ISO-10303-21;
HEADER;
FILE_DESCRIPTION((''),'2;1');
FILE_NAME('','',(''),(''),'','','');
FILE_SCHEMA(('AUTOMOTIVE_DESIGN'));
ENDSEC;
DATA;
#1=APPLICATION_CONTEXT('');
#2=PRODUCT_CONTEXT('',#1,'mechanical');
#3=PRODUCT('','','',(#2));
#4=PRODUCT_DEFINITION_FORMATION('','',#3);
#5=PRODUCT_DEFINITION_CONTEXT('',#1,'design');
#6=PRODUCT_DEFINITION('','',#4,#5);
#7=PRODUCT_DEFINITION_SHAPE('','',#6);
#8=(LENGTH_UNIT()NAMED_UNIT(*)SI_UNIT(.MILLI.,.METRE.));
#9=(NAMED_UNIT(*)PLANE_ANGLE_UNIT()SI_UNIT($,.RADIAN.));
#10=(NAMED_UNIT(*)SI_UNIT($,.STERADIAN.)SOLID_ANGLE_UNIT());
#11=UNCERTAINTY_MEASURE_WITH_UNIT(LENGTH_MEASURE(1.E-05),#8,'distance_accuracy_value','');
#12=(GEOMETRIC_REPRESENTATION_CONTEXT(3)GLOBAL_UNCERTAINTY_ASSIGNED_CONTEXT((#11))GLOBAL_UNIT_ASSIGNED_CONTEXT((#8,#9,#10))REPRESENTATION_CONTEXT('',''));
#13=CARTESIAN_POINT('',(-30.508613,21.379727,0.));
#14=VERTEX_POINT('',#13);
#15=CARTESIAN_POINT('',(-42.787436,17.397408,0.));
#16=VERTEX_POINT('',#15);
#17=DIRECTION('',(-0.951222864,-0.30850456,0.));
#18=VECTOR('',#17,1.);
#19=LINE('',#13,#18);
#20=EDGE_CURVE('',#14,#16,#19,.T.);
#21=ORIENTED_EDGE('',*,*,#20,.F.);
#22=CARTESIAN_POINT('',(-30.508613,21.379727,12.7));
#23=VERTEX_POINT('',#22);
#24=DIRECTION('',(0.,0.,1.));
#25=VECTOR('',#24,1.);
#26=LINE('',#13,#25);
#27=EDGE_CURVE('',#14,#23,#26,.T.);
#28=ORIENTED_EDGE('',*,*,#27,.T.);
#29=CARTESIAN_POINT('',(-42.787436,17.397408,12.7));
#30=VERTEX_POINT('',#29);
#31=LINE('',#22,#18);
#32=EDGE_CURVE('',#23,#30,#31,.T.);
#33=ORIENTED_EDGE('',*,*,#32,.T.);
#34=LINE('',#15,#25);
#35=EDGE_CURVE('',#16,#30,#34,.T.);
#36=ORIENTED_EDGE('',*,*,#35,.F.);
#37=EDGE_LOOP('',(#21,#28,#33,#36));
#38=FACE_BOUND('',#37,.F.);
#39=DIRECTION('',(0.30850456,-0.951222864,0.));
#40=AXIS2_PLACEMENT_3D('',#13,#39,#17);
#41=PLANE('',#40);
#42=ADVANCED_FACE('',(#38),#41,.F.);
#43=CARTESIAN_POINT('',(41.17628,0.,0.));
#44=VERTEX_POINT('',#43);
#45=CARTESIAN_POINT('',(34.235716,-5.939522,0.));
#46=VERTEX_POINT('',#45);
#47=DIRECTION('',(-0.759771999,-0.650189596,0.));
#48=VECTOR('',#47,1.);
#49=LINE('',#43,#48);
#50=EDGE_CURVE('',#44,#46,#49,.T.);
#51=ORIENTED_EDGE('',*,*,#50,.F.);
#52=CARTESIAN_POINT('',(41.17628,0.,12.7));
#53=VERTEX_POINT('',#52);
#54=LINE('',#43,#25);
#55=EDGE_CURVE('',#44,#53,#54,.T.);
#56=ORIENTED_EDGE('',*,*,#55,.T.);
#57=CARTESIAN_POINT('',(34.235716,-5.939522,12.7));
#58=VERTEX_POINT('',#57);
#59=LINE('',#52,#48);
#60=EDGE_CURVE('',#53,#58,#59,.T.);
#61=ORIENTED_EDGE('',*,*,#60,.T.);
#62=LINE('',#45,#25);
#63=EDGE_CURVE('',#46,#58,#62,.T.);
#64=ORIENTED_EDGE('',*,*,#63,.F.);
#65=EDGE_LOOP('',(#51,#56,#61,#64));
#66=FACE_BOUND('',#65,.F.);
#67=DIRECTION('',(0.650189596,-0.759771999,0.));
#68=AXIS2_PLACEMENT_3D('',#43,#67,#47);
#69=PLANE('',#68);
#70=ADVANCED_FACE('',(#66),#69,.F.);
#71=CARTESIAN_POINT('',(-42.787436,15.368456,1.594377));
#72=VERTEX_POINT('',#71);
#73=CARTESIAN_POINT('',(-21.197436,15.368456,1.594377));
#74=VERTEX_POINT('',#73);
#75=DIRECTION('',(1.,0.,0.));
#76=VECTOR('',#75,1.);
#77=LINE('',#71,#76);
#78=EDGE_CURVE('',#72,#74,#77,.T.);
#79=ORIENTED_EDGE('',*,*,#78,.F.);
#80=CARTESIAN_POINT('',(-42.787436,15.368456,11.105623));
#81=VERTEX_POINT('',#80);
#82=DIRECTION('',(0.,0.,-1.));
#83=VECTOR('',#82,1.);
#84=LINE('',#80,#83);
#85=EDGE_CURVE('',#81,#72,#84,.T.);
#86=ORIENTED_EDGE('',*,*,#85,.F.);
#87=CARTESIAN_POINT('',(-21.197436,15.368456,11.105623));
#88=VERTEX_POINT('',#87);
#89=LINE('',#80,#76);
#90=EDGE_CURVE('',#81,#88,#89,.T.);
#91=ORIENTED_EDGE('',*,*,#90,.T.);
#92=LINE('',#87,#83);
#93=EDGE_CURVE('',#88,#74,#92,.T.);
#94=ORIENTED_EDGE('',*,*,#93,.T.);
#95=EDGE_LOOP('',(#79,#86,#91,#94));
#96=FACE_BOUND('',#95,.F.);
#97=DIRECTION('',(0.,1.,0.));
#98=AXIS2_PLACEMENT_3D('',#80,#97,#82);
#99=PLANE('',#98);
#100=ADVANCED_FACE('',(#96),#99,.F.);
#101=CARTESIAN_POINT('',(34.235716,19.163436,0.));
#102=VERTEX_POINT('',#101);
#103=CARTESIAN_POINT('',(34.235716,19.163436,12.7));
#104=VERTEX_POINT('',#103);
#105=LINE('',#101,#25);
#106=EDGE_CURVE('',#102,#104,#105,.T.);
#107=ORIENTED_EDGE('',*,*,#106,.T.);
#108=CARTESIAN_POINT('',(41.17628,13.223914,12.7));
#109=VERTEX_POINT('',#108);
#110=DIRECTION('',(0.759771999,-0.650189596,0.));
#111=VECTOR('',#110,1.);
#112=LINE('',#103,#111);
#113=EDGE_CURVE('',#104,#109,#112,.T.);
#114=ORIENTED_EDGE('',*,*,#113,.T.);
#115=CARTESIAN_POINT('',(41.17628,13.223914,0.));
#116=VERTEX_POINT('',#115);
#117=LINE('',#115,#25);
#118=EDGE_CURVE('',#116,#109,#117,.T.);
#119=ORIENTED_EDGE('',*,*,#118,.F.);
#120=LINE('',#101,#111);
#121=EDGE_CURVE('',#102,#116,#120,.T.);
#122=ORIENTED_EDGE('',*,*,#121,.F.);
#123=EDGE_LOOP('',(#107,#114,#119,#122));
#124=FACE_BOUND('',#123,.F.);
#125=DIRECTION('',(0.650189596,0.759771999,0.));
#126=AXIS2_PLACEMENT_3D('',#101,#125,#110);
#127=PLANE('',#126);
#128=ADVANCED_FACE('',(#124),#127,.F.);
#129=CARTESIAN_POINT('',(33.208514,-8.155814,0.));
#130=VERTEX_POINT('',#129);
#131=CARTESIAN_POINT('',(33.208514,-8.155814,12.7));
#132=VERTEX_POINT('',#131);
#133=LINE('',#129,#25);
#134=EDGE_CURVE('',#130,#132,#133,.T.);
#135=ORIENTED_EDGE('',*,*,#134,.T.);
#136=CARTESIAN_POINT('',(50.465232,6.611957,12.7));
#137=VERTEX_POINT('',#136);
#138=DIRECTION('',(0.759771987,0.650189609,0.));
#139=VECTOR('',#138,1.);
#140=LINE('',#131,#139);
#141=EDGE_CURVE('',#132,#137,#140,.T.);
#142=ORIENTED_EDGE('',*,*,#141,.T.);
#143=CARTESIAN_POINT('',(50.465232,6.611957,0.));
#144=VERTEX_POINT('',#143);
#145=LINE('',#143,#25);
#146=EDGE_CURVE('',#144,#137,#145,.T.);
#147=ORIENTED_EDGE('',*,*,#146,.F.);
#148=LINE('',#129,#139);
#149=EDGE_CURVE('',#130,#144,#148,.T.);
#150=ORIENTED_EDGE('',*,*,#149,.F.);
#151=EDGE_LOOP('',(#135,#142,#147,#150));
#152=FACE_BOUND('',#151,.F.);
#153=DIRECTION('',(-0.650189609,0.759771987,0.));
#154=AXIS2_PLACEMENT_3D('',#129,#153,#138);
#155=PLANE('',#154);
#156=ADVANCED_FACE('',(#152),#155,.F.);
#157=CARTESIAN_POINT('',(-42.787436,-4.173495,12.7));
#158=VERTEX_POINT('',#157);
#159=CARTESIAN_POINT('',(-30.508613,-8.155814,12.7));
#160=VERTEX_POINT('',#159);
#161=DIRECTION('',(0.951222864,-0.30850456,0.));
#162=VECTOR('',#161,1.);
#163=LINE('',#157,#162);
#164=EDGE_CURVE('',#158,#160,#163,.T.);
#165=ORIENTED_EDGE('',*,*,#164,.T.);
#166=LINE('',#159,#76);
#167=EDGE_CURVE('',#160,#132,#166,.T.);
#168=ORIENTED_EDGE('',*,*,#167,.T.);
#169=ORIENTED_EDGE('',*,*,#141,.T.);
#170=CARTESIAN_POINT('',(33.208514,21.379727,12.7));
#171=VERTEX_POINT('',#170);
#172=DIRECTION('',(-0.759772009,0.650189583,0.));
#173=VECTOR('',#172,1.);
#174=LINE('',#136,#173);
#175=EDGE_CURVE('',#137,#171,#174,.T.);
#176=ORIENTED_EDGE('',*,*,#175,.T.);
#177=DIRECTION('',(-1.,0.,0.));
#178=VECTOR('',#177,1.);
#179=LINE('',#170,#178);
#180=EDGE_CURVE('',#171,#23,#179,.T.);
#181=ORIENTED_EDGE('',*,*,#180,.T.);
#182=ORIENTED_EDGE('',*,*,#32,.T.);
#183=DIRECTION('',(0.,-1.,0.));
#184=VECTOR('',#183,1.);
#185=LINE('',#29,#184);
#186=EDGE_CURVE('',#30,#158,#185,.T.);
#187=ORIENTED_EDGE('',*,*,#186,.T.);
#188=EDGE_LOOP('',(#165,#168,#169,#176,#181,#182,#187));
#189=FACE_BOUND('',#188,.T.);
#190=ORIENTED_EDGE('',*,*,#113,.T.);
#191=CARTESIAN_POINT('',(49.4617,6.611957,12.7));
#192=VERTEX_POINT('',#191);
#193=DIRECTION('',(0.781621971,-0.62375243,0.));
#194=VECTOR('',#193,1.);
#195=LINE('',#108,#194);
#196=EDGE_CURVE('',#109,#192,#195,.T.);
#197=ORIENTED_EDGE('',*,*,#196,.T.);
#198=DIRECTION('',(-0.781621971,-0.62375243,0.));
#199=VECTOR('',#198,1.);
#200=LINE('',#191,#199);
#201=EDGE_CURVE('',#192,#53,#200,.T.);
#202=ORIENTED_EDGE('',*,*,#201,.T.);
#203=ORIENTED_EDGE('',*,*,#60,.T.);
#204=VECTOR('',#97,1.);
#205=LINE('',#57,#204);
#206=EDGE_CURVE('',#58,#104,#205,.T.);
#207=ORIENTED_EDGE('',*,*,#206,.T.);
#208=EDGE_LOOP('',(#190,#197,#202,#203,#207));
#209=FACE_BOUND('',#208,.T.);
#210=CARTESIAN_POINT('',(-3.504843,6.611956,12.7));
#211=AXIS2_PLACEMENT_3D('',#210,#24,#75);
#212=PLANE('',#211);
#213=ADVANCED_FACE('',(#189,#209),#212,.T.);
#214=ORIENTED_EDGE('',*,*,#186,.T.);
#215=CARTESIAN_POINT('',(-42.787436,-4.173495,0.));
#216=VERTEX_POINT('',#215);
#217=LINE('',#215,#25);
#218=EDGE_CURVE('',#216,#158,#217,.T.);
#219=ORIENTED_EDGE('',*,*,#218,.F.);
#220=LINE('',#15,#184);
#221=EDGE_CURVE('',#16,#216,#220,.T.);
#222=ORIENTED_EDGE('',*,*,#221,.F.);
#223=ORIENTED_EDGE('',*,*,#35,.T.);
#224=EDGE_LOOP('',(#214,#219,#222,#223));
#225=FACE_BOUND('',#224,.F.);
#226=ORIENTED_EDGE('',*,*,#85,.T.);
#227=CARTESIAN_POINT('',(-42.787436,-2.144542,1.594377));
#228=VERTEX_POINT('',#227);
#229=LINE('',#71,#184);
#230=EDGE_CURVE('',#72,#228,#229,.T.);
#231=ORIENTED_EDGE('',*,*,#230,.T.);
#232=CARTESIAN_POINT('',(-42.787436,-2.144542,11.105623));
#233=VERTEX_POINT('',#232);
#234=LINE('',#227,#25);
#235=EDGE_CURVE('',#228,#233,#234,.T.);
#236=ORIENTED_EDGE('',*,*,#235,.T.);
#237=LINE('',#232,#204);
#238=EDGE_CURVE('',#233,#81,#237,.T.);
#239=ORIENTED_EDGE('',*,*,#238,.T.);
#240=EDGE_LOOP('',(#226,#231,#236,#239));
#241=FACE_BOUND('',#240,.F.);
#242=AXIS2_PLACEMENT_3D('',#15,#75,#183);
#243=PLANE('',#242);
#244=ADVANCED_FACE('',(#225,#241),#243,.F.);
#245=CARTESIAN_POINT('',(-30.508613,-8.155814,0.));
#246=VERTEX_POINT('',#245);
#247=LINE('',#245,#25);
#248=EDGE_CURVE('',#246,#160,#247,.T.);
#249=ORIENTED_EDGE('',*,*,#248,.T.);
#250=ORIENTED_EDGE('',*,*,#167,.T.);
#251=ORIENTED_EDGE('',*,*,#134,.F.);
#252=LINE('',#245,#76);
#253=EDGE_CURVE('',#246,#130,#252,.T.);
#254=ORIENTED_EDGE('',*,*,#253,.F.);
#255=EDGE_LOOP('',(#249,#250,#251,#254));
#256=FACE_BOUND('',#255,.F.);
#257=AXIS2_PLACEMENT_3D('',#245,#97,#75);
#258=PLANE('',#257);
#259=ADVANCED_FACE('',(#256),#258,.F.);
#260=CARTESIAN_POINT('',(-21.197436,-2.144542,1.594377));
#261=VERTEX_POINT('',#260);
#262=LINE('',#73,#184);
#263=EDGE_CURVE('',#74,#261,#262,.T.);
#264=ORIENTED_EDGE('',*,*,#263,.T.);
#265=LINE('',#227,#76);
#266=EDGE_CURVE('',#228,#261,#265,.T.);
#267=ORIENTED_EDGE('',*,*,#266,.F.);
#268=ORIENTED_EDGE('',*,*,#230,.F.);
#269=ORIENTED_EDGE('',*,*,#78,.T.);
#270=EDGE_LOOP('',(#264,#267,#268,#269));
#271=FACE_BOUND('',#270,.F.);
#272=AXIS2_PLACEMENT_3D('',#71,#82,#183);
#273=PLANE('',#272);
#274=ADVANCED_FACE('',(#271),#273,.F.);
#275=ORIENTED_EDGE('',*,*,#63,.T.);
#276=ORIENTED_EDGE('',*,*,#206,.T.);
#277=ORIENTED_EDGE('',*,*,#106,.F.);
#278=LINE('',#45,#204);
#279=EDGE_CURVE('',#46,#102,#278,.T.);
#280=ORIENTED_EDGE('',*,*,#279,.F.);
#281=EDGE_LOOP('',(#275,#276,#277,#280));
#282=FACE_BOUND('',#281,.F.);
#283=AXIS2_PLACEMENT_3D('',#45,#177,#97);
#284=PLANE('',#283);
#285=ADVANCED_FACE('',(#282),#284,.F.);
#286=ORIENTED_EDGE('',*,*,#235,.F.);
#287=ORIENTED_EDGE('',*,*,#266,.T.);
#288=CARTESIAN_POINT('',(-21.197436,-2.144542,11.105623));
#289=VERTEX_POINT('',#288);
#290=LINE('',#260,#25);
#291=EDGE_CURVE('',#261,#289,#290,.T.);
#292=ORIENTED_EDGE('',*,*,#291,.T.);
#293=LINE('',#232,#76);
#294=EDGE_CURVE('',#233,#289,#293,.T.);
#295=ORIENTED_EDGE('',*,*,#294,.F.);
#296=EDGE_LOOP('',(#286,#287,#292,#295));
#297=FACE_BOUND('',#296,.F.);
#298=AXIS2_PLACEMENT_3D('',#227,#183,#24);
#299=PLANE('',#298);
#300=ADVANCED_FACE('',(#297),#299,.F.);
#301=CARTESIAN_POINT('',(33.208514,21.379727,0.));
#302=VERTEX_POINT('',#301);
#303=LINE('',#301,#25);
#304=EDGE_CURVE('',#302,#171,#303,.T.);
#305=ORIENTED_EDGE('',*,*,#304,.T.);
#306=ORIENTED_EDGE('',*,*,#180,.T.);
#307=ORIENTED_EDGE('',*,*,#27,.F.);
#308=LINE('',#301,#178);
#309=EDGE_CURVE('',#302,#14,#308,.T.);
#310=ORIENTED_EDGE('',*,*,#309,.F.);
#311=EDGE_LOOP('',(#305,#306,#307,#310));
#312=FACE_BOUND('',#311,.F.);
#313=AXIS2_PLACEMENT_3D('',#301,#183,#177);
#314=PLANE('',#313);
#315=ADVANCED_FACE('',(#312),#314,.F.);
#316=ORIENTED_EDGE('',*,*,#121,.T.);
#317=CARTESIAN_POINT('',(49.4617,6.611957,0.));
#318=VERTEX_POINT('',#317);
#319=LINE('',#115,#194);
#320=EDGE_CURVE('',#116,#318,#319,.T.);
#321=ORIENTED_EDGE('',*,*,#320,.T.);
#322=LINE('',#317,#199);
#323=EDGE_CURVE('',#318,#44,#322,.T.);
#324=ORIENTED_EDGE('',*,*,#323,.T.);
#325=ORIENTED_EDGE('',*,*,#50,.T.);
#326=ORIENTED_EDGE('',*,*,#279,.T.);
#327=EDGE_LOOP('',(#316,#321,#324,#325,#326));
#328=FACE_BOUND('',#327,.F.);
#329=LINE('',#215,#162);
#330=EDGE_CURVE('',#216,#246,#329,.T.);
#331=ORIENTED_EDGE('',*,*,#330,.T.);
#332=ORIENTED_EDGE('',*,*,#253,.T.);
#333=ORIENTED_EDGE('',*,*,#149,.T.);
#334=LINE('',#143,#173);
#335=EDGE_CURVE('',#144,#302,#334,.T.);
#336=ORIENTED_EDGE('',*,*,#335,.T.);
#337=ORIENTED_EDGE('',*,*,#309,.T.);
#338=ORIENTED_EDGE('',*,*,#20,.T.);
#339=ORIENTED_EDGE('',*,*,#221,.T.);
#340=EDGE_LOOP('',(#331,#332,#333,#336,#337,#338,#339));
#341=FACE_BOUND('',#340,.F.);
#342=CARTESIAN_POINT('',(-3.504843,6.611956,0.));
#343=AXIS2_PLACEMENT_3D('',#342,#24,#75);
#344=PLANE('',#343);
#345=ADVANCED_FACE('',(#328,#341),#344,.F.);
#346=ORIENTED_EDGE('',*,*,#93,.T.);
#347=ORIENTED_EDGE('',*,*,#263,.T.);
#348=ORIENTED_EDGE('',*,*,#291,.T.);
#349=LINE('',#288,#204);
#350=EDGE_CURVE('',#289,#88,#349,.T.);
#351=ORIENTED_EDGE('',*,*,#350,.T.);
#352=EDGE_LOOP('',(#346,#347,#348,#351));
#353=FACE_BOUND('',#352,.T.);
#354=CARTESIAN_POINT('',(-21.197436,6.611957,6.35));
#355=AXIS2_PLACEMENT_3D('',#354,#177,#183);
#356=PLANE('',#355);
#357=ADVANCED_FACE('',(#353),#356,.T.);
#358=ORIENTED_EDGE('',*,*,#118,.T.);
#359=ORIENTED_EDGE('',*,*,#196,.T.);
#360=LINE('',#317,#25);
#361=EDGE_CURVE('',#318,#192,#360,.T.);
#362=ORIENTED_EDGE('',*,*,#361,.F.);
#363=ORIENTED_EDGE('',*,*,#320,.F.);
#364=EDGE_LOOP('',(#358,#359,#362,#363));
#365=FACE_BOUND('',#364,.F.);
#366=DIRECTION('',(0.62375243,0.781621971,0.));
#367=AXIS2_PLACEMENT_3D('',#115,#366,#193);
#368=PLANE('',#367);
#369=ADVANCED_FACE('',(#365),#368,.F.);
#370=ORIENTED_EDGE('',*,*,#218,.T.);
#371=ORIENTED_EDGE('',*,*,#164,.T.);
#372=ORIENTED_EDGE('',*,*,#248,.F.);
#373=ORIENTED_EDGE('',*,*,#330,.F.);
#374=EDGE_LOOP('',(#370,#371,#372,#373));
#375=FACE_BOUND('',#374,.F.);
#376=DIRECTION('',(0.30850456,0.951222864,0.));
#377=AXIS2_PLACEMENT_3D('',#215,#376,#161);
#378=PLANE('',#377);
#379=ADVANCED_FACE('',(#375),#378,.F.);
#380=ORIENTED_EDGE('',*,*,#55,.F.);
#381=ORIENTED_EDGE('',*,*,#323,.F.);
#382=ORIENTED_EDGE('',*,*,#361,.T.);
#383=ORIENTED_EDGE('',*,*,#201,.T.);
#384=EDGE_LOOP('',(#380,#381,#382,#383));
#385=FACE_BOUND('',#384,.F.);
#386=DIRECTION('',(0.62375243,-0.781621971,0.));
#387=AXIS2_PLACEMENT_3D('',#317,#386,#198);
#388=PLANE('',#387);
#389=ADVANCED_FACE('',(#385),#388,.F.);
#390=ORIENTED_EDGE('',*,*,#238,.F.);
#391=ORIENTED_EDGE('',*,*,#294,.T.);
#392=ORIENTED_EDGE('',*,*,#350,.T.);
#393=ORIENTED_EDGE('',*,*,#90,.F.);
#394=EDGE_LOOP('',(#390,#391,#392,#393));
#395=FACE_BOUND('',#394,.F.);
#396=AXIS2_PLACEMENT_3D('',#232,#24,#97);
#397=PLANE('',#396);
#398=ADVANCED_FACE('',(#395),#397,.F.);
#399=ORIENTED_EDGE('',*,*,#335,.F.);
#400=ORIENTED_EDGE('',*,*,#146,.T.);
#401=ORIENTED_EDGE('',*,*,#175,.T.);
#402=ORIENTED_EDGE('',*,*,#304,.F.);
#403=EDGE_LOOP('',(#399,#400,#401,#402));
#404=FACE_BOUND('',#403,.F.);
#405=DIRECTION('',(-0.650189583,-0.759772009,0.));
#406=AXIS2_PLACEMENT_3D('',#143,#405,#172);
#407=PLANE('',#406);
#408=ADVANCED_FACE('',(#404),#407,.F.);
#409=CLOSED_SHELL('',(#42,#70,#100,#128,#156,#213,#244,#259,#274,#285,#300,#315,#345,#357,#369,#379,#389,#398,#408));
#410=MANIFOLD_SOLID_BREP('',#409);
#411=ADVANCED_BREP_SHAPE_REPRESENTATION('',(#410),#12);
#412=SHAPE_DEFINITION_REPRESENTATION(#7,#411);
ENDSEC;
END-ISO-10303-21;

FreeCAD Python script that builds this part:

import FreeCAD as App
import Part
import Sketcher
Q = App.Units.Quantity

doc = App.newDocument("Part")
body = doc.addObject("PartDesign::Body", "Body")

sketch1 = body.newObject("Sketcher::SketchObject", "Sketch")
sketch1.AttachmentSupport = (doc.getObject("XY_Plane"), [""])
sketch1.MapMode = "FlatFace"
sketch1.addGeometry([
    Part.LineSegment(App.Vector(33.208514, 21.379727, 0), App.Vector(-30.508613, 21.379727, 0)),
    Part.LineSegment(App.Vector(-30.508613, 21.379727, 0), App.Vector(-42.787436, 17.397408, 0)),
    Part.LineSegment(App.Vector(-42.787436, 17.397408, 0), App.Vector(-42.787436, -4.173495, 0)),
    Part.LineSegment(App.Vector(-42.787436, -4.173495, 0), App.Vector(-30.508613, -8.155814, 0)),
    Part.LineSegment(App.Vector(-30.508613, -8.155814, 0), App.Vector(33.208514, -8.155814, 0)),
    Part.LineSegment(App.Vector(33.208514, -8.155814, 0), App.Vector(50.465232, 6.611957, 0)),
    Part.LineSegment(App.Vector(50.465232, 6.611957, 0), App.Vector(33.208514, 21.379727, 0)),
    Part.LineSegment(App.Vector(41.17628, 13.223914, 0), App.Vector(49.4617, 6.611957, 0)),
    Part.LineSegment(App.Vector(49.4617, 6.611957, 0), App.Vector(41.17628, 0, 0)),
    Part.LineSegment(App.Vector(41.17628, 0, 0), App.Vector(34.235716, -5.939522, 0)),
    Part.LineSegment(App.Vector(34.235716, -5.939522, 0), App.Vector(34.235716, 19.163436, 0)),
    Part.LineSegment(App.Vector(34.235716, 19.163436, 0), App.Vector(41.17628, 13.223914, 0)),
], False)
sketch1.addConstraint([
    Sketcher.Constraint("Coincident", 0, 2, 1, 1),
    Sketcher.Constraint("Coincident", 1, 2, 2, 1),
    Sketcher.Constraint("Coincident", 2, 2, 3, 1),
    Sketcher.Constraint("Coincident", 3, 2, 4, 1),
    Sketcher.Constraint("Coincident", 4, 2, 5, 1),
    Sketcher.Constraint("Coincident", 5, 2, 6, 1),
    Sketcher.Constraint("Coincident", 6, 2, 0, 1),
    Sketcher.Constraint("Coincident", 7, 2, 8, 1),
    Sketcher.Constraint("Coincident", 8, 2, 9, 1),
    Sketcher.Constraint("Coincident", 9, 2, 10, 1),
    Sketcher.Constraint("Coincident", 10, 2, 11, 1),
    Sketcher.Constraint("Coincident", 11, 2, 7, 1),
    Sketcher.Constraint("Horizontal", 0),
    Sketcher.Constraint("Vertical", 2),
    Sketcher.Constraint("Horizontal", 4),
    Sketcher.Constraint("Vertical", 10),
    Sketcher.Constraint("PointOnObject", 8, 2, -1),
    Sketcher.Constraint("Parallel", 5, 9),
    Sketcher.Constraint("Parallel", 6, 11),
    Sketcher.Constraint("Horizontal", 5, 2, 7, 2),
    Sketcher.Constraint("Vertical", 0, 2, 3, 2),
    Sketcher.Constraint("Vertical", 4, 2, 6, 2),
    Sketcher.Constraint("Vertical", 8, 2, 11, 2),
    Sketcher.Constraint("Equal", 1, 3),
    Sketcher.Constraint("Equal", 5, 6),
    Sketcher.Constraint("Equal", 7, 8),
    Sketcher.Constraint("DistanceY", 10, 1, 10, 2, 25.102958),
    Sketcher.Constraint("DistanceX", -1, 1, 7, 2, 49.4617),
    Sketcher.Constraint("DistanceX", 4, 2, 9, 2, 1.027202),
    Sketcher.Constraint("Distance", 1, 12.908461),
    Sketcher.Constraint("Distance", 6, 22.713022),
    Sketcher.Constraint("Distance", 7, 10.600291),
    Sketcher.Constraint("Distance", 9, 9.135062),
    Sketcher.Constraint("DistanceX", 0, 2, 0, 1, 63.717127),
    Sketcher.Constraint("DistanceY", 2, 2, 2, 1, 21.570903),
    Sketcher.Constraint("DistanceX", -1, 1, 8, 2, 41.17628),
])
pad1 = body.newObject("PartDesign::Pad", "Pad")
pad1.Profile = sketch1
pad1.Length = Q("0.5 in")

sketch2 = body.newObject("Sketcher::SketchObject", "Sketch001")
sketch2.AttachmentSupport = (doc.getObject("YZ_Plane"), [""])
sketch2.MapMode = "FlatFace"
sketch2.AttachmentOffset = App.Placement(App.Vector(0, 0, -42.787436), App.Rotation())
sketch2.addGeometry([
    Part.LineSegment(App.Vector(15.368456, 11.105623, 0), App.Vector(15.368456, 1.594377, 0)),
    Part.LineSegment(App.Vector(15.368456, 1.594377, 0), App.Vector(-2.144542, 1.594377, 0)),
    Part.LineSegment(App.Vector(-2.144542, 1.594377, 0), App.Vector(-2.144542, 11.105623, 0)),
    Part.LineSegment(App.Vector(-2.144542, 11.105623, 0), App.Vector(15.368456, 11.105623, 0)),
], False)
sketch2.addConstraint([
    Sketcher.Constraint("Coincident", 0, 2, 1, 1),
    Sketcher.Constraint("Coincident", 1, 2, 2, 1),
    Sketcher.Constraint("Coincident", 2, 2, 3, 1),
    Sketcher.Constraint("Coincident", 3, 2, 0, 1),
    Sketcher.Constraint("Vertical", 0),
    Sketcher.Constraint("Horizontal", 1),
    Sketcher.Constraint("Vertical", 2),
    Sketcher.Constraint("Horizontal", 3),
    Sketcher.Constraint("DistanceX", 1, 2, 1, 1, 17.512998),
    Sketcher.Constraint("DistanceY", 0, 2, 0, 1, 9.511246),
    Sketcher.Constraint("DistanceX", 1, 2, -1, 1, 2.144542),
    Sketcher.Constraint("DistanceY", -1, 1, 0, 2, 1.594377),
])
pocket1 = body.newObject("PartDesign::Pocket", "Pocket")
pocket1.Profile = sketch2
pocket1.Length = Q("0.85 in")
pocket1.Reversed = True

doc.recompute()
